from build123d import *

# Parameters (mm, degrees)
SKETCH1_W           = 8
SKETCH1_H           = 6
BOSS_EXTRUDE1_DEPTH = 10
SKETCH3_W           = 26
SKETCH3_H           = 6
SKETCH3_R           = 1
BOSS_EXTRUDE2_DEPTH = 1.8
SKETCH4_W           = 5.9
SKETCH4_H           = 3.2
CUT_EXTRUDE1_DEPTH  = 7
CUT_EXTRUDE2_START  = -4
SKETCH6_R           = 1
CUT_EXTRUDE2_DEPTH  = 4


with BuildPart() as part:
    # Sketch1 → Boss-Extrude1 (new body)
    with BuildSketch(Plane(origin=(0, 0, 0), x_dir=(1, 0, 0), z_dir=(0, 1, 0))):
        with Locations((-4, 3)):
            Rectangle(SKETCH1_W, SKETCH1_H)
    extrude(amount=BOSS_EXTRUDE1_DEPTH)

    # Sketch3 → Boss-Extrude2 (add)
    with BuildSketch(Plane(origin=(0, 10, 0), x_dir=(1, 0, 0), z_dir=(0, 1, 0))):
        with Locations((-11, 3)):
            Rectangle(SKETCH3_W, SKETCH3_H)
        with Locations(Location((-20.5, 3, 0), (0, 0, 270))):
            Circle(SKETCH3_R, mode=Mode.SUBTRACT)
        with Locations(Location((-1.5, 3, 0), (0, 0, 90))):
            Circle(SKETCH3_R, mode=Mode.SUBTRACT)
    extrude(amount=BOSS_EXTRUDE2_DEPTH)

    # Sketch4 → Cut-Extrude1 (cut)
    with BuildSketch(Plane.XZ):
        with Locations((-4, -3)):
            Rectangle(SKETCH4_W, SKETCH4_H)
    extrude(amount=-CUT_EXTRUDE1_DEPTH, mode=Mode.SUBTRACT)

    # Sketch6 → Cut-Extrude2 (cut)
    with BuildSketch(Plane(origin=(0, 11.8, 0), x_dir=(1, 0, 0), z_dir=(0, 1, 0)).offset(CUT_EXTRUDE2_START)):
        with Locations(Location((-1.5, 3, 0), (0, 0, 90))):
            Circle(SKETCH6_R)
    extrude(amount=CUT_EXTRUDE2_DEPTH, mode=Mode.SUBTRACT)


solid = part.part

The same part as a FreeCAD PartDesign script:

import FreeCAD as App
import Part
import Sketcher
from FreeCAD import Vector


def add_polygon(sketch, points):
    """Adds a closed chain of lines whose ends are joined by coincident constraints."""
    first, n = sketch.GeometryCount, len(points)
    for a, b in zip(points, points[1:] + points[:1]):
        sketch.addGeometry(Part.LineSegment(App.Vector(*a, 0), App.Vector(*b, 0)), False)
    for i in range(n):
        sketch.addConstraint(Sketcher.Constraint("Coincident", first + i, 2, first + (i + 1) % n, 1))

doc = App.newDocument("Part")
body = doc.addObject("PartDesign::Body", "Body")

sketch1 = body.newObject("Sketcher::SketchObject", "Sketch")
sketch1.AttachmentSupport = (doc.getObject("XZ_Plane"), [""])
sketch1.MapMode = "FlatFace"
add_polygon(sketch1, [(-8, -6), (-8, 0), (0, 0), (0, -6)])
sketch1.addConstraint([
    Sketcher.Constraint("Vertical", 0),
    Sketcher.Constraint("Horizontal", 1),
    Sketcher.Constraint("Vertical", 2),
    Sketcher.Constraint("Horizontal", 3),
    Sketcher.Constraint("Coincident", 1, 2, -1, 1),
    Sketcher.Constraint("DistanceX", 1, 1, 1, 2, 8.0),
    Sketcher.Constraint("DistanceY", 0, 1, 0, 2, 6.0),
])
pad1 = body.newObject("PartDesign::Pad", "Pad")
pad1.Profile = sketch1
pad1.Length = 10
pad1.Reversed = True

sketch2 = body.newObject("Sketcher::SketchObject", "Sketch001")
sketch2.AttachmentSupport = (doc.getObject("XZ_Plane"), [""])
sketch2.MapMode = "FlatFace"
sketch2.AttachmentOffset = App.Placement(Vector(0, 0, -10), App.Rotation())
add_polygon(sketch2, [(-24, -6), (-24, 0), (2, 0), (2, -6)])
sketch2.addGeometry(Part.Circle(Vector(-20.5, -3, 0), Vector(0, 0, 1), 1), False)
sketch2.addGeometry(Part.Circle(Vector(-1.5, -3, 0), Vector(0, 0, 1), 1), False)
sketch2.addConstraint([
    Sketcher.Constraint("Vertical", 0),
    Sketcher.Constraint("Horizontal", 1),
    Sketcher.Constraint("Vertical", 2),
    Sketcher.Constraint("Horizontal", 3),
    Sketcher.Constraint("Equal", 4, 5),
    Sketcher.Constraint("PointOnObject", 0, 2, -1),
    Sketcher.Constraint("Horizontal", 4, 3, 5, 3),
    Sketcher.Constraint("Diameter", 4, 2.0),
    Sketcher.Constraint("DistanceX", 1, 1, 1, 2, 26.0),
    Sketcher.Constraint("DistanceY", 0, 1, 0, 2, 6.0),
    Sketcher.Constraint("DistanceY", 4, 3, -1, 1, 3.0),
    Sketcher.Constraint("DistanceX", 0, 2, -1, 1, 24.0),
    Sketcher.Constraint("DistanceX", 4, 3, 5, 3, 19.0),
    Sketcher.Constraint("DistanceX", 4, 3, -1, 1, 20.5),
])
pad2 = body.newObject("PartDesign::Pad", "Pad001")
pad2.Profile = sketch2
pad2.Length = 1.8
pad2.Reversed = True

sketch3 = body.newObject("Sketcher::SketchObject", "Sketch002")
sketch3.AttachmentSupport = (doc.getObject("XZ_Plane"), [""])
sketch3.MapMode = "FlatFace"
add_polygon(sketch3, [(-6.95, -1.4), (-6.95, -4.6), (-1.05, -4.6), (-1.05, -1.4)])
sketch3.addConstraint([
    Sketcher.Constraint("Vertical", 0),
    Sketcher.Constraint("Horizontal", 1),
    Sketcher.Constraint("Vertical", 2),
    Sketcher.Constraint("Horizontal", 3),
    Sketcher.Constraint("DistanceX", 1, 1, 1, 2, 5.9),
    Sketcher.Constraint("DistanceY", 0, 2, 0, 1, 3.2),
    Sketcher.Constraint("DistanceY", 0, 2, -1, 1, 4.6),
    Sketcher.Constraint("DistanceX", 0, 2, -1, 1, 6.95),
])
pocket1 = body.newObject("PartDesign::Pocket", "Pocket")
pocket1.Profile = sketch3
pocket1.Length = 7

sketch4 = body.newObject("Sketcher::SketchObject", "Sketch003")
sketch4.AttachmentSupport = (doc.getObject("XZ_Plane"), [""])
sketch4.MapMode = "FlatFace"
sketch4.AttachmentOffset = App.Placement(Vector(0, 0, -7.8), App.Rotation())
sketch4.addGeometry(Part.Circle(Vector(-1.5, -3, 0), Vector(0, 0, 1), 1), False)
sketch4.addConstraint([
    Sketcher.Constraint("Diameter", 0, 2.0),
    Sketcher.Constraint("DistanceY", 0, 3, -1, 1, 3.0),
    Sketcher.Constraint("DistanceX", 0, 3, -1, 1, 1.5),
])
pocket2 = body.newObject("PartDesign::Pocket", "Pocket001")
pocket2.Profile = sketch4
pocket2.Length = 4

doc.recompute()
